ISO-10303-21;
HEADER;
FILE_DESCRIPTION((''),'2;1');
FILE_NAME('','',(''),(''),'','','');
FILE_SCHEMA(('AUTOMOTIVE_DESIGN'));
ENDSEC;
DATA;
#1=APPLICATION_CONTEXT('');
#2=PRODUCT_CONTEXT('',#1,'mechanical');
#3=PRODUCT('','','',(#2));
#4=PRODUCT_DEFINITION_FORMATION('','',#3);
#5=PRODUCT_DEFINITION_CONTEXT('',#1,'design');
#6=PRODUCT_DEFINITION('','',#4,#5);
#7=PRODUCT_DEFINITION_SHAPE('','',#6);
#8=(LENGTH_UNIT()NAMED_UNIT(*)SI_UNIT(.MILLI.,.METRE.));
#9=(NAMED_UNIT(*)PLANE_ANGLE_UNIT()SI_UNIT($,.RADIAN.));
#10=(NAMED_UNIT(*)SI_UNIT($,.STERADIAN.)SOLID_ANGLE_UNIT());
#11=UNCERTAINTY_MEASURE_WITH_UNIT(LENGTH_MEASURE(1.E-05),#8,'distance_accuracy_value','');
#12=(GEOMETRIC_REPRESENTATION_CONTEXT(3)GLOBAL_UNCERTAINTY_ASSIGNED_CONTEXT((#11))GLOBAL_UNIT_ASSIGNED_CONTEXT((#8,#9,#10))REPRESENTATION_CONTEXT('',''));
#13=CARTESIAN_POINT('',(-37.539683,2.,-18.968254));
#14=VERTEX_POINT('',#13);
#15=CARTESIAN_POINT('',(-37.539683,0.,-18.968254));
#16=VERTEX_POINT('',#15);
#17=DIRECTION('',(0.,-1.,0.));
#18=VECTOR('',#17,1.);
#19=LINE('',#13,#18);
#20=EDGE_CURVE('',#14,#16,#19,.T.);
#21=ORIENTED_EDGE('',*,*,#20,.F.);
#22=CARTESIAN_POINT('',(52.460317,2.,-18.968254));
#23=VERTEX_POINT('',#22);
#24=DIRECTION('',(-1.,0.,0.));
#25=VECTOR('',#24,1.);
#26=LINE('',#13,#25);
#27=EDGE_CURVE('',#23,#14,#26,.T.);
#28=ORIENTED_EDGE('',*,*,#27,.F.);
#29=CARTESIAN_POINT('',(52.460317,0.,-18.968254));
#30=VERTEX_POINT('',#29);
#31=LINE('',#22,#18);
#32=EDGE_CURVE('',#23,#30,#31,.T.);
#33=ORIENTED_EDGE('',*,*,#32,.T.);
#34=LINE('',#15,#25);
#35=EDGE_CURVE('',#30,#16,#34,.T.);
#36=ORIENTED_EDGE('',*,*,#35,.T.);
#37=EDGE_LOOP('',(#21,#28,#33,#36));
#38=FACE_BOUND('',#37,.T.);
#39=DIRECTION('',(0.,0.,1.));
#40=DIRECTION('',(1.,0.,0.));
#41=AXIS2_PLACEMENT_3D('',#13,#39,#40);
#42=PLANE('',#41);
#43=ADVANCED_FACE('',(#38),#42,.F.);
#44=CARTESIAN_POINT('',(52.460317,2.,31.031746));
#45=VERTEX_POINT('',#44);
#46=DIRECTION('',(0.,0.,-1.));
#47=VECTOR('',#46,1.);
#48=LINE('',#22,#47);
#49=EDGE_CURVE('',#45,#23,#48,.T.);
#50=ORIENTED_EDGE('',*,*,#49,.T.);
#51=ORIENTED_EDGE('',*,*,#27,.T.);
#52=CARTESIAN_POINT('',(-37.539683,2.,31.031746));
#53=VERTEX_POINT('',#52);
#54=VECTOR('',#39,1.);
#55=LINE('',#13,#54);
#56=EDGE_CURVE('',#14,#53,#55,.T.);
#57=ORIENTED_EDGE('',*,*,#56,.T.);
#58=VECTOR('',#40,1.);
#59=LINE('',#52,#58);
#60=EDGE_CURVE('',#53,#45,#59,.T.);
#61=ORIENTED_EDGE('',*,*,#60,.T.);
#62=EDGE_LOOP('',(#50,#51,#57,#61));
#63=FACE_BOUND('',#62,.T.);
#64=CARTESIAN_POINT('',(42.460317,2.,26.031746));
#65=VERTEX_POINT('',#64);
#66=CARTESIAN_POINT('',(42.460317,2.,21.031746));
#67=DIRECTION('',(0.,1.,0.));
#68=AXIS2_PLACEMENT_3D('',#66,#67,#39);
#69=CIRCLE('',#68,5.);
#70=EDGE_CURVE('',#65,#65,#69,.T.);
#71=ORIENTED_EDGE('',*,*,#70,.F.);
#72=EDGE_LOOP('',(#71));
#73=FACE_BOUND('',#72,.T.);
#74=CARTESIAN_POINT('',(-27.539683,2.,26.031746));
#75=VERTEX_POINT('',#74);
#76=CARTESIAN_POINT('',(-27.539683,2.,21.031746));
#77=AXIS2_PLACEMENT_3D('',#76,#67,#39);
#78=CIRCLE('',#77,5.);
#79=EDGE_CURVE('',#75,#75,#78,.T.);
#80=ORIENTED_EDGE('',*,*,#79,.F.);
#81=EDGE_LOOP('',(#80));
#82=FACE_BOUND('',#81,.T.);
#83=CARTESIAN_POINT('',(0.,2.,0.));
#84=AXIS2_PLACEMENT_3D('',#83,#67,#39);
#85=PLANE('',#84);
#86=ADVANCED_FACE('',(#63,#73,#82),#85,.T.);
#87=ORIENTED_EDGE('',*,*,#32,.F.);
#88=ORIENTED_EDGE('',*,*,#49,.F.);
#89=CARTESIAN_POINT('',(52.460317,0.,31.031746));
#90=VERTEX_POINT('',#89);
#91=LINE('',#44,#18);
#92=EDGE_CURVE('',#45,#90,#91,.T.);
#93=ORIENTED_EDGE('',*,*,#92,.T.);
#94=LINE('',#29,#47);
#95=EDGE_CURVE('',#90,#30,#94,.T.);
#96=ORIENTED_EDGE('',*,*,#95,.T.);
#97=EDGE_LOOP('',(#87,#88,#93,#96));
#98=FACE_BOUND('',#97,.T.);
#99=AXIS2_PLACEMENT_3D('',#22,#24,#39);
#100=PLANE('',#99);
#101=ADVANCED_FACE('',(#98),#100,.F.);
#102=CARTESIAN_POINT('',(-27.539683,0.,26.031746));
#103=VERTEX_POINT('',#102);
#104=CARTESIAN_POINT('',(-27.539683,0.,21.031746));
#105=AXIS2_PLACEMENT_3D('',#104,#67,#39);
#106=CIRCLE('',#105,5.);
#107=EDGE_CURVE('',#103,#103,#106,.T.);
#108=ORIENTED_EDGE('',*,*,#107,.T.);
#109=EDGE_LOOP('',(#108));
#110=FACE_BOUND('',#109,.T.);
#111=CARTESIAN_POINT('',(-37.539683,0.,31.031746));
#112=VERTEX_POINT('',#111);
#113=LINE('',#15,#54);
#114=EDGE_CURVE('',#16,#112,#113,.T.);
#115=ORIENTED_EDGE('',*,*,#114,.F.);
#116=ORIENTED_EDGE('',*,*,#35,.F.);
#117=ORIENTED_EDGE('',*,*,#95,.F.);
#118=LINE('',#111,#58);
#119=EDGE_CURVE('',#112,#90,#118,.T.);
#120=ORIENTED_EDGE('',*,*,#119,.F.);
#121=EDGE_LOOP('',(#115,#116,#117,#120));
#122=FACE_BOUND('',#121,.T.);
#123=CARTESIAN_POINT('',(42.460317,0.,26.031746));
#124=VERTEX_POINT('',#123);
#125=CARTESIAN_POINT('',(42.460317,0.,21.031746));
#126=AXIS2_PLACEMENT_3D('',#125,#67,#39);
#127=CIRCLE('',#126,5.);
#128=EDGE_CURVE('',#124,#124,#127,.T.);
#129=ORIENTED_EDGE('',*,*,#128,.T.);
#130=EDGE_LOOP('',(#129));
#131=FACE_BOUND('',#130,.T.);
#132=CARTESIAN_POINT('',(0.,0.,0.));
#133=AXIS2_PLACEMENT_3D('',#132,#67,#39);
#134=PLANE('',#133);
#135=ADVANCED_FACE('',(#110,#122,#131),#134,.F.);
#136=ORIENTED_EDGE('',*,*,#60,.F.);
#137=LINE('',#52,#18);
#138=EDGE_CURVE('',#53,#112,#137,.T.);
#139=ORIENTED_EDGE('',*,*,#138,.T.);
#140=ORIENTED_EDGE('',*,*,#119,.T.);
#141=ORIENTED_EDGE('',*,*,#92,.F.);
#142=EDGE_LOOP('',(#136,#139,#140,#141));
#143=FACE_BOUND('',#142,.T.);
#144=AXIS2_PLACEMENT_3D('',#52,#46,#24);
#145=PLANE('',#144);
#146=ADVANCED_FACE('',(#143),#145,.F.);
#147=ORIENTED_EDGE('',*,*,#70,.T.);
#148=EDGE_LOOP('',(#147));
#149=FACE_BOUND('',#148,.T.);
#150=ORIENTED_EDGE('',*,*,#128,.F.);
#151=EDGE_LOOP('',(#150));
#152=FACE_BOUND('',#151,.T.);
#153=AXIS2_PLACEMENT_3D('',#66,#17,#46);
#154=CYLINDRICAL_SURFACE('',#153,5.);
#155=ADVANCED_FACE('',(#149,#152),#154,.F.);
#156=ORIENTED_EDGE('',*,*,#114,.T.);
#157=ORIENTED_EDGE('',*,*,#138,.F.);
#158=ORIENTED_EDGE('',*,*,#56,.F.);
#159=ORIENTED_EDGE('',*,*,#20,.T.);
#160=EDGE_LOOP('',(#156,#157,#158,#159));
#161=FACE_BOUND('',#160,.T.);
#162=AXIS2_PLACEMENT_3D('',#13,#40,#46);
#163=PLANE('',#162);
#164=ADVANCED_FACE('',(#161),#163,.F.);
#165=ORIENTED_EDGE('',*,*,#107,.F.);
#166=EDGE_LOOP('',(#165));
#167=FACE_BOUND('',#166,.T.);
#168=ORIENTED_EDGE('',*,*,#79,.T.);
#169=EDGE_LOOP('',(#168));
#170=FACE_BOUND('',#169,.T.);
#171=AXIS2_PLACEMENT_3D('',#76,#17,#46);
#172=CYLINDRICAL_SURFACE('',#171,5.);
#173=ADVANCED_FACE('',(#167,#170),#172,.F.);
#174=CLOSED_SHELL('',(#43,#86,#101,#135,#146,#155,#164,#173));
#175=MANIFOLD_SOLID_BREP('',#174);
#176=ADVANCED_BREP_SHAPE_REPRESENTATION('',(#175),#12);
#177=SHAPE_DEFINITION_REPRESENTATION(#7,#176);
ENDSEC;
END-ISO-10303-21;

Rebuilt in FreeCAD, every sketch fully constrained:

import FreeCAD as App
import Part
import Sketcher
Q = App.Units.Quantity


def add_polygon(sketch, points):
    """Adds a closed chain of lines whose ends are joined by coincident constraints."""
    first, n = sketch.GeometryCount, len(points)
    for a, b in zip(points, points[1:] + points[:1]):
        sketch.addGeometry(Part.LineSegment(App.Vector(*a, 0), App.Vector(*b, 0)), False)
    for i in range(n):
        sketch.addConstraint(Sketcher.Constraint("Coincident", first + i, 2, first + (i + 1) % n, 1))

doc = App.newDocument("Part")
body = doc.addObject("PartDesign::Body", "Body")

# Sketch on XZ plane
sketch1 = body.newObject("Sketcher::SketchObject", "Sketch")
sketch1.AttachmentSupport = (doc.getObject("XZ_Plane"), [""])
sketch1.MapMode = "FlatFace"
add_polygon(sketch1, [(-37.539683, -18.968254), (-37.539683, 31.031746), (52.460317, 31.031746), (52.460317, -18.968254)])  # lines 0-3
sketch1.addGeometry(Part.Circle(App.Vector(-27.539683, 21.031746, 0), App.Vector(0, 0, 1), 5), False)  # 4
sketch1.addGeometry(Part.Circle(App.Vector(42.460317, 21.031746, 0), App.Vector(0, 0, 1), 5), False)  # 5
sketch1.addConstraint(Sketcher.Constraint("Vertical", 0))
sketch1.addConstraint(Sketcher.Constraint("Horizontal", 1))
sketch1.addConstraint(Sketcher.Constraint("Vertical", 2))
sketch1.addConstraint(Sketcher.Constraint("Horizontal", 3))
sketch1.addConstraint(Sketcher.Constraint("Equal", 4, 5))
sketch1.addConstraint(Sketcher.Constraint("Horizontal", 4, 3, 5, 3))
sketch1.addConstraint(Sketcher.Constraint("Diameter", 4, Q("10 mm")))
sketch1.addConstraint(Sketcher.Constraint("DistanceX", 1, 1, 1, 2, Q("90 mm")))
sketch1.addConstraint(Sketcher.Constraint("DistanceY", 0, 1, 0, 2, Q("50 mm")))
sketch1.addConstraint(Sketcher.Constraint("DistanceX", 4, 3, 5, 3, Q("70 mm")))
sketch1.addConstraint(Sketcher.Constraint("DistanceX", 0, 2, 4, 3, Q("10 mm")))
sketch1.addConstraint(Sketcher.Constraint("DistanceY", 4, 3, 0, 2, Q("10 mm")))
sketch1.addConstraint(Sketcher.Constraint("DistanceX", 4, 3, -1, 1, Q("27.539683 mm")))
sketch1.addConstraint(Sketcher.Constraint("DistanceY", -1, 1, 4, 3, Q("21.031746 mm")))
pad1 = body.newObject("PartDesign::Pad", "Pad")
pad1.Profile = sketch1
pad1.Length = 2
pad1.Reversed = True

doc.recompute()
